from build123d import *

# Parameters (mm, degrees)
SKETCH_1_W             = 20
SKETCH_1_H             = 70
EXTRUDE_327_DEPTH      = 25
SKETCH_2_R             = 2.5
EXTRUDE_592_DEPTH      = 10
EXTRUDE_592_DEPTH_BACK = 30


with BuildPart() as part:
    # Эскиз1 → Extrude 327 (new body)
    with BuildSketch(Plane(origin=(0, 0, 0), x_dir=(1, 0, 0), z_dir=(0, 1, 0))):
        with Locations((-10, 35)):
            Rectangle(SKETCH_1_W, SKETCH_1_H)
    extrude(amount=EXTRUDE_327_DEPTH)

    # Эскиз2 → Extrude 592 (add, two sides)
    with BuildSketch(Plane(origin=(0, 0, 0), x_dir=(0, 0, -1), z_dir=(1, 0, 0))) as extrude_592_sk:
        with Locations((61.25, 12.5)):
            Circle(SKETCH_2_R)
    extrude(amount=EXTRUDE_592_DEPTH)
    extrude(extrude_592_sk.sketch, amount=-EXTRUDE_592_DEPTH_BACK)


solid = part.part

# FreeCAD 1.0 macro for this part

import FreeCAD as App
import Part
import Sketcher
from FreeCAD import Vector


def add_polygon(sketch, points):
    """Adds a closed chain of lines whose ends are joined by coincident constraints."""
    first, n = sketch.GeometryCount, len(points)
    for a, b in zip(points, points[1:] + points[:1]):
        sketch.addGeometry(Part.LineSegment(App.Vector(*a, 0), App.Vector(*b, 0)), False)
    for i in range(n):
        sketch.addConstraint(Sketcher.Constraint("Coincident", first + i, 2, first + (i + 1) % n, 1))

doc = App.newDocument("Part")
body = doc.addObject("PartDesign::Body", "Body")

sketch1 = body.newObject("Sketcher::SketchObject", "Sketch")
sketch1.AttachmentSupport = (doc.getObject("XZ_Plane"), [""])
sketch1.MapMode = "FlatFace"
add_polygon(sketch1, [(-20, -70), (-20, 0), (0, 0), (0, -70)])
sketch1.addConstraint(Sketcher.Constraint("Vertical", 0))
sketch1.addConstraint(Sketcher.Constraint("Horizontal", 1))
sketch1.addConstraint(Sketcher.Constraint("Vertical", 2))
sketch1.addConstraint(Sketcher.Constraint("Horizontal", 3))
sketch1.addConstraint(Sketcher.Constraint("Coincident", 1, 2, -1, 1))
sketch1.addConstraint(Sketcher.Constraint("DistanceX", 1, 1, 1, 2, 20.0))
sketch1.addConstraint(Sketcher.Constraint("DistanceY", 0, 1, 0, 2, 70.0))
pad1 = body.newObject("PartDesign::Pad", "Pad")
pad1.Profile = sketch1
pad1.Length = 25
pad1.Reversed = True

sketch2 = body.newObject("Sketcher::SketchObject", "Sketch001")
sketch2.AttachmentSupport = (doc.getObject("YZ_Plane"), [""])
sketch2.MapMode = "FlatFace"
sketch2.addGeometry(Part.Circle(Vector(12.5, -61.2, 0), Vector(0, 0, 1), 2.5), False)
sketch2.addConstraint(Sketcher.Constraint("Diameter", 0, 5.0))
sketch2.addConstraint(Sketcher.Constraint("DistanceX", -1, 1, 0, 3, 12.5))
sketch2.addConstraint(Sketcher.Constraint("DistanceY", 0, 3, -1, 1, 61.25))
pad2 = body.newObject("PartDesign::Pad", "Pad001")
pad2.Profile = sketch2
pad2.Type = "TwoLengths"
pad2.Length = 10
pad2.Length2 = 30

doc.recompute()
